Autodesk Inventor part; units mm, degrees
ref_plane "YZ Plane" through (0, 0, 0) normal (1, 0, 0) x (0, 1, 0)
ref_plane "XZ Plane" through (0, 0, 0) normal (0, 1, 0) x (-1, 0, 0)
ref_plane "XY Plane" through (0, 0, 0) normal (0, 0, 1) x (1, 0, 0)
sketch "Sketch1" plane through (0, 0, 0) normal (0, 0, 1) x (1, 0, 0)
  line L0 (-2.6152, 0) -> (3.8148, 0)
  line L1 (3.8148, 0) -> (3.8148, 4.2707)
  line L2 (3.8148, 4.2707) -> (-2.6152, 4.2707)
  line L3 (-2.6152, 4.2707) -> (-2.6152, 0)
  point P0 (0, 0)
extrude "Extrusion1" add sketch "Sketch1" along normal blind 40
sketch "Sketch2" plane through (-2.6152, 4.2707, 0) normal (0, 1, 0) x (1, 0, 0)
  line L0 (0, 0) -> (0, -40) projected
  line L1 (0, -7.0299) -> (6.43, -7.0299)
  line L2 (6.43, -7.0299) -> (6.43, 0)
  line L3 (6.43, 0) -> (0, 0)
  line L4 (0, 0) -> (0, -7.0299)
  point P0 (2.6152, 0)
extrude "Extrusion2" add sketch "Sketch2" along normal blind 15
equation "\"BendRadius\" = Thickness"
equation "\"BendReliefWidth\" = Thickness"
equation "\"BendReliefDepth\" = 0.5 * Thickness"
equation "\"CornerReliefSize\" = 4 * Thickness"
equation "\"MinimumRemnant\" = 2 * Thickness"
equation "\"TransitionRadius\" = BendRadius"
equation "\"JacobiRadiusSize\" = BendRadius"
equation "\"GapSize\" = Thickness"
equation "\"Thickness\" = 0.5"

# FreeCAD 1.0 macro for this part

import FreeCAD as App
import Part
import Sketcher
from FreeCAD import Vector
Q = App.Units.Quantity


def add_polygon(sketch, points):
    """Adds a closed chain of lines whose ends are joined by coincident constraints."""
    first, n = sketch.GeometryCount, len(points)
    for a, b in zip(points, points[1:] + points[:1]):
        sketch.addGeometry(Part.LineSegment(App.Vector(*a, 0), App.Vector(*b, 0)), False)
    for i in range(n):
        sketch.addConstraint(Sketcher.Constraint("Coincident", first + i, 2, first + (i + 1) % n, 1))

doc = App.newDocument("Part")
body = doc.addObject("PartDesign::Body", "Body")

sketch1 = body.newObject("Sketcher::SketchObject", "Sketch")
sketch1.AttachmentSupport = (doc.getObject("XY_Plane"), [""])
sketch1.MapMode = "FlatFace"
add_polygon(sketch1, [(-2.6, 4.3), (-2.6, 0), (3.8, 0), (3.8, 4.3)])
sketch1.addConstraint([
    Sketcher.Constraint("Vertical", 0),
    Sketcher.Constraint("Horizontal", 1),
    Sketcher.Constraint("Vertical", 2),
    Sketcher.Constraint("Horizontal", 3),
    Sketcher.Constraint("PointOnObject", 0, 2, -1),
    Sketcher.Constraint("DistanceX", 1, 1, 1, 2, Q("6.43 mm")),
    Sketcher.Constraint("DistanceY", 0, 2, 0, 1, Q("4.2707 mm")),
    Sketcher.Constraint("DistanceX", 0, 2, -1, 1, Q("2.6152 mm")),
])
pad1 = body.newObject("PartDesign::Pad", "Pad")
pad1.Profile = sketch1
pad1.Length = 40

sketch2 = body.newObject("Sketcher::SketchObject", "Sketch001")
sketch2.AttachmentSupport = (doc.getObject("XZ_Plane"), [""])
sketch2.MapMode = "FlatFace"
sketch2.AttachmentOffset = App.Placement(Vector(0, 0, -4.2707), App.Rotation())
add_polygon(sketch2, [(4, 0), (-3, 0), (-3, 7), (4, 7)])
sketch2.addConstraint([
    Sketcher.Constraint("Horizontal", 0),
    Sketcher.Constraint("Vertical", 1),
    Sketcher.Constraint("Horizontal", 2),
    Sketcher.Constraint("Vertical", 3),
    Sketcher.Constraint("PointOnObject", 0, 2, -1),
    Sketcher.Constraint("DistanceX", 0, 2, 0, 1, Q("6.43 mm")),
    Sketcher.Constraint("DistanceY", 1, 1, 1, 2, Q("7.03 mm")),
    Sketcher.Constraint("DistanceX", 0, 2, -1, 1, Q("2.6152 mm")),
])
pad2 = body.newObject("PartDesign::Pad", "Pad001")
pad2.Profile = sketch2
pad2.Length = 15
pad2.Reversed = True

doc.recompute()
